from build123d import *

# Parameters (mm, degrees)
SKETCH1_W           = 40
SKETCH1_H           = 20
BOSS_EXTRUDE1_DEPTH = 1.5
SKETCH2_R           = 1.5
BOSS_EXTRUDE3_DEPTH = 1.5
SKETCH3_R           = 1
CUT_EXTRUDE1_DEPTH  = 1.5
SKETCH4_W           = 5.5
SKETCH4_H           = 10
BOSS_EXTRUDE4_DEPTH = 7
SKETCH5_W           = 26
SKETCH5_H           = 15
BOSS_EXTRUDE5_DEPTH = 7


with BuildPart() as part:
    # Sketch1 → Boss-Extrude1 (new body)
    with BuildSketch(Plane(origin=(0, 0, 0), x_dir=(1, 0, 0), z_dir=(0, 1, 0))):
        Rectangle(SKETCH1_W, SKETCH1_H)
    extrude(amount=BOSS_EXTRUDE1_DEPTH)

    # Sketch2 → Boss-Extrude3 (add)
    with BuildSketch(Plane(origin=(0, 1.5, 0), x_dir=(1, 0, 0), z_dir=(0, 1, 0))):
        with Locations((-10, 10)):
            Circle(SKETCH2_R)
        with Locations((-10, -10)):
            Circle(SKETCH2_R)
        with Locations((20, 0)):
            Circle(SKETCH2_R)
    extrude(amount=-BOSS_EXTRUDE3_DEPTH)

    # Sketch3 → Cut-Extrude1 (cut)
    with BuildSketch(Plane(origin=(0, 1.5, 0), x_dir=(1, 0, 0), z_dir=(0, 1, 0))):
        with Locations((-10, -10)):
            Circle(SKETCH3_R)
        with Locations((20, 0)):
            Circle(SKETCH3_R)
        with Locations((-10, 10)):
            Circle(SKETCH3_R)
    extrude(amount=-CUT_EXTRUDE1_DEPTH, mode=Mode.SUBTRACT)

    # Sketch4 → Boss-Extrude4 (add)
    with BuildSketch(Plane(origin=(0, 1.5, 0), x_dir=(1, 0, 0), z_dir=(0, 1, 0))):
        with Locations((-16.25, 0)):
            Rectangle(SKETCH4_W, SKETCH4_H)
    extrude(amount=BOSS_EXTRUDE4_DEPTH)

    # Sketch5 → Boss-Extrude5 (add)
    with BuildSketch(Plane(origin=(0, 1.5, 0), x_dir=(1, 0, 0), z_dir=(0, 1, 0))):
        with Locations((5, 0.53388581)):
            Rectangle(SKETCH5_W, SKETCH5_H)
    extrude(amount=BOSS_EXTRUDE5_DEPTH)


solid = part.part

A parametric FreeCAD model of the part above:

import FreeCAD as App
import Part
import Sketcher
from FreeCAD import Vector


def add_polygon(sketch, points):
    """Adds a closed chain of lines whose ends are joined by coincident constraints."""
    first, n = sketch.GeometryCount, len(points)
    for a, b in zip(points, points[1:] + points[:1]):
        sketch.addGeometry(Part.LineSegment(App.Vector(*a, 0), App.Vector(*b, 0)), False)
    for i in range(n):
        sketch.addConstraint(Sketcher.Constraint("Coincident", first + i, 2, first + (i + 1) % n, 1))

doc = App.newDocument("Part")
params = doc.addObject("Spreadsheet::Sheet", "Params")
for row, (alias, value) in enumerate([
    ("sketch1_width", "40 mm"),
    ("sketch1_height", "20 mm"),
    ("pad1_length", "1.5 mm"),
    ("sketch2_diameter", "3 mm"),
    ("pad2_length", "1.5 mm"),
    ("sketch3_diameter", "2 mm"),
    ("pocket1_length", "1.5 mm"),
    ("sketch4_height", "10 mm"),
    ("sketch4_width", "5.5 mm"),
    ("pad3_length", "7 mm"),
    ("sketch5_width", "26 mm"),
    ("sketch5_height", "15 mm"),
    ("pad4_length", "7 mm"),
], start=1):
    params.set(f"A{row}", alias)
    params.set(f"B{row}", "=" + value)
    params.setAlias(f"B{row}", alias)

body = doc.addObject("PartDesign::Body", "Body")

# Sketch on XZ plane
sketch1 = body.newObject("Sketcher::SketchObject", "Sketch")
sketch1.AttachmentSupport = (doc.getObject("XZ_Plane"), [""])
sketch1.MapMode = "FlatFace"
add_polygon(sketch1, [(-20, -10), (-20, 10), (20, 10), (20, -10)])  # lines 0-3
sketch1.addConstraint([
    Sketcher.Constraint("Vertical", 0),
    Sketcher.Constraint("Horizontal", 1),
    Sketcher.Constraint("Vertical", 2),
    Sketcher.Constraint("Horizontal", 3),
    Sketcher.Constraint("Symmetric", 0, 2, 2, 2, -1, 1),
    Sketcher.Constraint("DistanceX", 1, 1, 1, 2, 40.0),
    Sketcher.Constraint("DistanceY", 0, 1, 0, 2, 20.0),
])
sketch1.setExpression("Constraints[9]", "Params.sketch1_width")
sketch1.setExpression("Constraints[10]", "Params.sketch1_height")
pad1 = body.newObject("PartDesign::Pad", "Pad")
pad1.Profile = sketch1
pad1.setExpression("Length", "Params.pad1_length")
pad1.Reversed = True

# Sketch on XZ plane
sketch2 = body.newObject("Sketcher::SketchObject", "Sketch001")
sketch2.AttachmentSupport = (doc.getObject("XZ_Plane"), [""])
sketch2.MapMode = "FlatFace"
sketch2.AttachmentOffset = App.Placement(Vector(0, 0, -1.5), App.Rotation())
sketch2.addGeometry([
    Part.Circle(Vector(-10, -10, 0), Vector(0, 0, 1), 1.5),
    Part.Circle(Vector(-10, 10, 0), Vector(0, 0, 1), 1.5),
    Part.Circle(Vector(20, 0, 0), Vector(0, 0, 1), 1.5),
], False)
sketch2.addConstraint([
    Sketcher.Constraint("Equal", 0, 1),
    Sketcher.Constraint("Equal", 1, 2),
    Sketcher.Constraint("Symmetric", 0, 3, 1, 3, -1),
    Sketcher.Constraint("PointOnObject", 2, 3, -1),
    Sketcher.Constraint("Diameter", 0, 3.0),
    Sketcher.Constraint("DistanceX", 0, 3, -1, 1, 10.0),
    Sketcher.Constraint("DistanceY", 0, 3, -1, 1, 10.0),
    Sketcher.Constraint("DistanceX", -1, 1, 2, 3, 20.0),
])
sketch2.setExpression("Constraints[4]", "Params.sketch2_diameter")
pad2 = body.newObject("PartDesign::Pad", "Pad001")
pad2.Profile = sketch2
pad2.setExpression("Length", "Params.pad2_length")

# Sketch on XZ plane
sketch3 = body.newObject("Sketcher::SketchObject", "Sketch002")
sketch3.AttachmentSupport = (doc.getObject("XZ_Plane"), [""])
sketch3.MapMode = "FlatFace"
sketch3.AttachmentOffset = App.Placement(Vector(0, 0, -1.5), App.Rotation())
sketch3.addGeometry([
    Part.Circle(Vector(-10, 10, 0), Vector(0, 0, 1), 1),
    Part.Circle(Vector(20, 0, 0), Vector(0, 0, 1), 1),
    Part.Circle(Vector(-10, -10, 0), Vector(0, 0, 1), 1),
], False)
sketch3.addConstraint([
    Sketcher.Constraint("Equal", 0, 1),
    Sketcher.Constraint("Equal", 1, 2),
    Sketcher.Constraint("Symmetric", 0, 3, 2, 3, -1),
    Sketcher.Constraint("PointOnObject", 1, 3, -1),
    Sketcher.Constraint("Diameter", 0, 2.0),
    Sketcher.Constraint("DistanceX", 0, 3, -1, 1, 10.0),
    Sketcher.Constraint("DistanceY", -1, 1, 0, 3, 10.0),
    Sketcher.Constraint("DistanceX", -1, 1, 1, 3, 20.0),
])
sketch3.setExpression("Constraints[4]", "Params.sketch3_diameter")
pocket1 = body.newObject("PartDesign::Pocket", "Pocket")
pocket1.Profile = sketch3
pocket1.setExpression("Length", "Params.pocket1_length")
pocket1.Reversed = True

# Sketch on XZ plane
sketch4 = body.newObject("Sketcher::SketchObject", "Sketch003")
sketch4.AttachmentSupport = (doc.getObject("XZ_Plane"), [""])
sketch4.MapMode = "FlatFace"
sketch4.AttachmentOffset = App.Placement(Vector(0, 0, -1.5), App.Rotation())
add_polygon(sketch4, [(-19, -5), (-19, 5), (-13.5, 5), (-13.5, -5)])  # lines 0-3
sketch4.addConstraint([
    Sketcher.Constraint("Vertical", 0),
    Sketcher.Constraint("Horizontal", 1),
    Sketcher.Constraint("Vertical", 2),
    Sketcher.Constraint("Horizontal", 3),
    Sketcher.Constraint("DistanceY", 0, 1, 0, 2, 10.0),
    Sketcher.Constraint("DistanceX", 1, 1, 1, 2, 5.5),
    Sketcher.Constraint("DistanceX", 0, 2, -1, 1, 19.0),
    Sketcher.Constraint("DistanceY", -1, 1, 0, 2, 5.0),
])
sketch4.setExpression("Constraints[8]", "Params.sketch4_height")
sketch4.setExpression("Constraints[9]", "Params.sketch4_width")
pad3 = body.newObject("PartDesign::Pad", "Pad002")
pad3.Profile = sketch4
pad3.setExpression("Length", "Params.pad3_length")
pad3.Reversed = True

# Sketch on XZ plane
sketch5 = body.newObject("Sketcher::SketchObject", "Sketch004")
sketch5.AttachmentSupport = (doc.getObject("XZ_Plane"), [""])
sketch5.MapMode = "FlatFace"
sketch5.AttachmentOffset = App.Placement(Vector(0, 0, -1.5), App.Rotation())
add_polygon(sketch5, [(-8, -8.033886), (-8, 6.966114), (18, 6.966114), (18, -8.033886)])  # lines 0-3
sketch5.addConstraint([
    Sketcher.Constraint("Vertical", 0),
    Sketcher.Constraint("Horizontal", 1),
    Sketcher.Constraint("Vertical", 2),
    Sketcher.Constraint("Horizontal", 3),
    Sketcher.Constraint("DistanceX", 1, 1, 1, 2, 26.0),
    Sketcher.Constraint("DistanceY", 0, 1, 0, 2, 15.0),
    Sketcher.Constraint("DistanceX", 0, 2, -1, 1, 8.0),
    Sketcher.Constraint("DistanceY", -1, 1, 0, 2, 6.966114),
])
sketch5.setExpression("Constraints[8]", "Params.sketch5_width")
sketch5.setExpression("Constraints[9]", "Params.sketch5_height")
pad4 = body.newObject("PartDesign::Pad", "Pad003")
pad4.Profile = sketch5
pad4.setExpression("Length", "Params.pad4_length")
pad4.Reversed = True

doc.recompute()
